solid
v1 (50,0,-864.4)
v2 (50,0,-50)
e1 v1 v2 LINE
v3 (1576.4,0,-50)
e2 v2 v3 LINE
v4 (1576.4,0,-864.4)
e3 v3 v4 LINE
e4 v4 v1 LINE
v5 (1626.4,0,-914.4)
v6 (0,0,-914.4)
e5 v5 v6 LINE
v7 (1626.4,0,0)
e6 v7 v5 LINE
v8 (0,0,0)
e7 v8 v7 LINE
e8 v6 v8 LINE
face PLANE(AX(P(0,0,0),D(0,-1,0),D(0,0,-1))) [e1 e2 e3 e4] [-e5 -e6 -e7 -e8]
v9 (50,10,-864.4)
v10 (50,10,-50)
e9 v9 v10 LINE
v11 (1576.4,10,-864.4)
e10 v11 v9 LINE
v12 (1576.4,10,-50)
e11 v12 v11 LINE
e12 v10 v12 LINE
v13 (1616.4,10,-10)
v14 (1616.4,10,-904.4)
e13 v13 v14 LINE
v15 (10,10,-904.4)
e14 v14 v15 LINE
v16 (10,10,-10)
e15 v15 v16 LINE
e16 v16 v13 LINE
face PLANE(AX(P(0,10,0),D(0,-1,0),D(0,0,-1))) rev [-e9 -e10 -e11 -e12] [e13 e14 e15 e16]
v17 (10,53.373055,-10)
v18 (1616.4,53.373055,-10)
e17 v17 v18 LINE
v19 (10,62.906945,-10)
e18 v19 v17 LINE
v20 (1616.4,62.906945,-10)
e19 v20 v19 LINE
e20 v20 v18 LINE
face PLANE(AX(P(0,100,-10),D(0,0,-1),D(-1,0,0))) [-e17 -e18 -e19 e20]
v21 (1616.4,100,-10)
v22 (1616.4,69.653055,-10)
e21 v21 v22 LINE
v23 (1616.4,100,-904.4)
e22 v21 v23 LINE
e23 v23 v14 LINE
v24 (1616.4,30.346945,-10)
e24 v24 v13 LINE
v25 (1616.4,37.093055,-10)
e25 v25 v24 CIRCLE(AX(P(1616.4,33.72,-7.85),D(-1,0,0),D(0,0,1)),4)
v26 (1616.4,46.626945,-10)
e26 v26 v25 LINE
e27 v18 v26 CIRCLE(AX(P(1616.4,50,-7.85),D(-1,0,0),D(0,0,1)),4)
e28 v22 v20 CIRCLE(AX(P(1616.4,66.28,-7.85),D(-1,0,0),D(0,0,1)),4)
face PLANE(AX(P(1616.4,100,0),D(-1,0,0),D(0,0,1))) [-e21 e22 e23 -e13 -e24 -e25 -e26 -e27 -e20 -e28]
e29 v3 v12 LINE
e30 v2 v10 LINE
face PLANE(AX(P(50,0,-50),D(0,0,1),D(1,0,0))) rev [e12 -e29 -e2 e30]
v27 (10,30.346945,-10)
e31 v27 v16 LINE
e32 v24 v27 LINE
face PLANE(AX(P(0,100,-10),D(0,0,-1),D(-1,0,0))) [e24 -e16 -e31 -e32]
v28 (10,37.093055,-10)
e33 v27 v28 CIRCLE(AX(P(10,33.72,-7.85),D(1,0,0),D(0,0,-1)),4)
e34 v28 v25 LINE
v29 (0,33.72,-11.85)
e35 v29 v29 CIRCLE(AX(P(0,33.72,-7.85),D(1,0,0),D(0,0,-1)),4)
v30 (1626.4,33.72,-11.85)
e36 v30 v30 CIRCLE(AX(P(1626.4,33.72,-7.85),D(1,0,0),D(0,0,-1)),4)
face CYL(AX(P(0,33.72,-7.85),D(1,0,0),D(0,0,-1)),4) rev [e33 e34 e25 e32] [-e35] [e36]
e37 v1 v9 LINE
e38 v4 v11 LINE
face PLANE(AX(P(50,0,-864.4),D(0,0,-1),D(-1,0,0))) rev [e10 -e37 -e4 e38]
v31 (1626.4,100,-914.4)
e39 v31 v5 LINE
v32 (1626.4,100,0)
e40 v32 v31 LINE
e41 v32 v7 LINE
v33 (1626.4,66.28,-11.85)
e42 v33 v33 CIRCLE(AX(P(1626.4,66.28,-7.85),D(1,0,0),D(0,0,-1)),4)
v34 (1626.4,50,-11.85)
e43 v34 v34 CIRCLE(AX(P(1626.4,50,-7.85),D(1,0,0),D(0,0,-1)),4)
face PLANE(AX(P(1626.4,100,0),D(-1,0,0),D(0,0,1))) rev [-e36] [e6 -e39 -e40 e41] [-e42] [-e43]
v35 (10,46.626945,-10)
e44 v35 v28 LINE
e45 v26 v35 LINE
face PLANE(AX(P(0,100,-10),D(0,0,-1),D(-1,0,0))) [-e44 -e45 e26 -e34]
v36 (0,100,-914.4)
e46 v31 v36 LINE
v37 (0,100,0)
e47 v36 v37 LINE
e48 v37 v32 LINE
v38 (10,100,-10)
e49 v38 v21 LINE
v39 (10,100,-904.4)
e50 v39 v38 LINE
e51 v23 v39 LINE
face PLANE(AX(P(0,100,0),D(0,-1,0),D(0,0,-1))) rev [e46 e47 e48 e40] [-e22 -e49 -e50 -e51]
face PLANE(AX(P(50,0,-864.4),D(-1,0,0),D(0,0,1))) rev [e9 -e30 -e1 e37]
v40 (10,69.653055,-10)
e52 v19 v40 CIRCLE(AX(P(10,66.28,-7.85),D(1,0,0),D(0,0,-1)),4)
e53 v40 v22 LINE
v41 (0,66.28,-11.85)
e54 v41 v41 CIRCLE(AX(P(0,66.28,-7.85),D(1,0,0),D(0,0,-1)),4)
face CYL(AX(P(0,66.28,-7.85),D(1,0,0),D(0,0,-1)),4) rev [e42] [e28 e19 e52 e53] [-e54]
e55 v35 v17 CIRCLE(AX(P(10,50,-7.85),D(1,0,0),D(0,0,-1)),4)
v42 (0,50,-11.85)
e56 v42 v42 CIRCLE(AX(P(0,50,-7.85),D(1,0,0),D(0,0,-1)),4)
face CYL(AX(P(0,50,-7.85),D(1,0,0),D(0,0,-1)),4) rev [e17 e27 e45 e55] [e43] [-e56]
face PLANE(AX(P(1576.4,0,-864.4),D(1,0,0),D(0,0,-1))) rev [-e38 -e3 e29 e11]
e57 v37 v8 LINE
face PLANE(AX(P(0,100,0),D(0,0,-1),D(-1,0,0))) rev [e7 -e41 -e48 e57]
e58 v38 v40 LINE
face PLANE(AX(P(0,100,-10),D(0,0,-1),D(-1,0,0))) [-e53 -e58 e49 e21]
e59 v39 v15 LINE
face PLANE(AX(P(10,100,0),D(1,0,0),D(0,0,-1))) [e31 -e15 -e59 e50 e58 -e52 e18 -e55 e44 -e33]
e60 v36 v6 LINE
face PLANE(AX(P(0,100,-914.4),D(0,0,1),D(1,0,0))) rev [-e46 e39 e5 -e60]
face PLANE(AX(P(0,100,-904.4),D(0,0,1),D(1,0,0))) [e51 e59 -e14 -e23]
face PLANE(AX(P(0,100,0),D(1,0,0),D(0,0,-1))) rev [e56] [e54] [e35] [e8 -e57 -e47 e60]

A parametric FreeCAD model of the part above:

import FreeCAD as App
import Part
import Sketcher
Q = App.Units.Quantity


def faces_at(feature, points):
    """Names of the faces that lie closest to the given points."""
    faces = feature.Shape.Faces
    near = lambda p: min(range(len(faces)), key=lambda i: faces[i].distToShape(Part.Vertex(*p))[0])
    return sorted({f"Face{near(p) + 1}" for p in points})


def add_polygon(sketch, points):
    """Adds a closed chain of lines whose ends are joined by coincident constraints."""
    first, n = sketch.GeometryCount, len(points)
    for a, b in zip(points, points[1:] + points[:1]):
        sketch.addGeometry(Part.LineSegment(App.Vector(*a, 0), App.Vector(*b, 0)), False)
    for i in range(n):
        sketch.addConstraint(Sketcher.Constraint("Coincident", first + i, 2, first + (i + 1) % n, 1))

doc = App.newDocument("Part")
body = doc.addObject("PartDesign::Body", "Body")

sketch1 = doc.addObject("Sketcher::SketchObject", "Sketch")
body.addObject(sketch1)
sketch1.AttachmentSupport = (doc.XZ_Plane, [""])
sketch1.MapMode = "FlatFace"
add_polygon(sketch1, [(0, -914), (0, 0), (1626, 0), (1626, -914)])
sketch1.addConstraint(Sketcher.Constraint("Vertical", 0))
sketch1.addConstraint(Sketcher.Constraint("Horizontal", 1))
sketch1.addConstraint(Sketcher.Constraint("Vertical", 2))
sketch1.addConstraint(Sketcher.Constraint("Horizontal", 3))
sketch1.addConstraint(Sketcher.Constraint("Coincident", 0, 2, -1, 1))
sketch1.addConstraint(Sketcher.Constraint("DistanceX", 1, 1, 1, 2, Q("1626.4 mm")))
sketch1.addConstraint(Sketcher.Constraint("DistanceY", 0, 1, 0, 2, Q("914.4 mm")))
pad1 = doc.addObject("PartDesign::Pad", "Pad")
body.addObject(pad1)
pad1.Profile = sketch1
pad1.Length = 100
pad1.Reversed = True
doc.recompute()

thickness = doc.addObject("PartDesign::Thickness", "Thickness")
body.addObject(thickness)
thickness.Base = (pad1, faces_at(pad1, [(813.2, 100, -457.2)]))
thickness.Value = 10
thickness.Reversed = True
thickness.Join = "Intersection"

sketch2 = doc.addObject("Sketcher::SketchObject", "Sketch001")
body.addObject(sketch2)
sketch2.AttachmentSupport = (doc.XZ_Plane, [""])
sketch2.MapMode = "FlatFace"
sketch2.AttachmentOffset = App.Placement(App.Vector(0, 0, -10), App.Rotation())
add_polygon(sketch2, [(50, -864), (50, -50), (1576, -50), (1576, -864)])
sketch2.addConstraint(Sketcher.Constraint("Vertical", 0))
sketch2.addConstraint(Sketcher.Constraint("Horizontal", 1))
sketch2.addConstraint(Sketcher.Constraint("Vertical", 2))
sketch2.addConstraint(Sketcher.Constraint("Horizontal", 3))
sketch2.addConstraint(Sketcher.Constraint("DistanceX", 1, 1, 1, 2, Q("1526.4 mm")))
sketch2.addConstraint(Sketcher.Constraint("DistanceY", 0, 1, 0, 2, Q("814.4 mm")))
sketch2.addConstraint(Sketcher.Constraint("DistanceX", -1, 1, 0, 2, Q("50 mm")))
sketch2.addConstraint(Sketcher.Constraint("DistanceY", 0, 2, -1, 1, Q("50 mm")))
pocket1 = doc.addObject("PartDesign::Pocket", "Pocket")
body.addObject(pocket1)
pocket1.Profile = sketch2
pocket1.Type = "ThroughAll"
pocket1.Reversed = True

sketch3 = doc.addObject("Sketcher::SketchObject", "Sketch002")
body.addObject(sketch3)
sketch3.AttachmentSupport = (doc.YZ_Plane, [""])
sketch3.MapMode = "FlatFace"
sketch3.AttachmentOffset = App.Placement(App.Vector(0, 0, 1626.4), App.Rotation())
sketch3.addGeometry(Part.Circle(App.Vector(50, -7.8, 0), App.Vector(0, 0, 1), 4), False)
sketch3.addConstraint(Sketcher.Constraint("Diameter", 0, Q("8 mm")))
sketch3.addConstraint(Sketcher.Constraint("DistanceX", -1, 1, 0, 3, Q("50 mm")))
sketch3.addConstraint(Sketcher.Constraint("DistanceY", 0, 3, -1, 1, Q("7.85 mm")))
pocket2 = doc.addObject("PartDesign::Pocket", "Pocket001")
body.addObject(pocket2)
pocket2.Profile = sketch3
pocket2.Type = "ThroughAll"

sketch4 = doc.addObject("Sketcher::SketchObject", "Sketch003")
body.addObject(sketch4)
sketch4.AttachmentSupport = (doc.YZ_Plane, [""])
sketch4.MapMode = "FlatFace"
sketch4.AttachmentOffset = App.Placement(App.Vector(0, 0, 1626.4), App.Rotation())
sketch4.addGeometry(Part.Circle(App.Vector(66.3, -7.8, 0), App.Vector(0, 0, 1), 4), False)
sketch4.addConstraint(Sketcher.Constraint("Diameter", 0, Q("8 mm")))
sketch4.addConstraint(Sketcher.Constraint("DistanceX", -1, 1, 0, 3, Q("66.28 mm")))
sketch4.addConstraint(Sketcher.Constraint("DistanceY", 0, 3, -1, 1, Q("7.85 mm")))
pocket3 = doc.addObject("PartDesign::Pocket", "Pocket002")
body.addObject(pocket3)
pocket3.Profile = sketch4
pocket3.Type = "ThroughAll"

sketch5 = doc.addObject("Sketcher::SketchObject", "Sketch004")
body.addObject(sketch5)
sketch5.AttachmentSupport = (doc.YZ_Plane, [""])
sketch5.MapMode = "FlatFace"
sketch5.AttachmentOffset = App.Placement(App.Vector(0, 0, 1626.4), App.Rotation())
sketch5.addGeometry(Part.Circle(App.Vector(33.7, -7.8, 0), App.Vector(0, 0, 1), 4), False)
sketch5.addConstraint(Sketcher.Constraint("Diameter", 0, Q("8 mm")))
sketch5.addConstraint(Sketcher.Constraint("DistanceX", -1, 1, 0, 3, Q("33.72 mm")))
sketch5.addConstraint(Sketcher.Constraint("DistanceY", 0, 3, -1, 1, Q("7.85 mm")))
pocket4 = doc.addObject("PartDesign::Pocket", "Pocket003")
body.addObject(pocket4)
pocket4.Profile = sketch5
pocket4.Type = "ThroughAll"

doc.recompute()
